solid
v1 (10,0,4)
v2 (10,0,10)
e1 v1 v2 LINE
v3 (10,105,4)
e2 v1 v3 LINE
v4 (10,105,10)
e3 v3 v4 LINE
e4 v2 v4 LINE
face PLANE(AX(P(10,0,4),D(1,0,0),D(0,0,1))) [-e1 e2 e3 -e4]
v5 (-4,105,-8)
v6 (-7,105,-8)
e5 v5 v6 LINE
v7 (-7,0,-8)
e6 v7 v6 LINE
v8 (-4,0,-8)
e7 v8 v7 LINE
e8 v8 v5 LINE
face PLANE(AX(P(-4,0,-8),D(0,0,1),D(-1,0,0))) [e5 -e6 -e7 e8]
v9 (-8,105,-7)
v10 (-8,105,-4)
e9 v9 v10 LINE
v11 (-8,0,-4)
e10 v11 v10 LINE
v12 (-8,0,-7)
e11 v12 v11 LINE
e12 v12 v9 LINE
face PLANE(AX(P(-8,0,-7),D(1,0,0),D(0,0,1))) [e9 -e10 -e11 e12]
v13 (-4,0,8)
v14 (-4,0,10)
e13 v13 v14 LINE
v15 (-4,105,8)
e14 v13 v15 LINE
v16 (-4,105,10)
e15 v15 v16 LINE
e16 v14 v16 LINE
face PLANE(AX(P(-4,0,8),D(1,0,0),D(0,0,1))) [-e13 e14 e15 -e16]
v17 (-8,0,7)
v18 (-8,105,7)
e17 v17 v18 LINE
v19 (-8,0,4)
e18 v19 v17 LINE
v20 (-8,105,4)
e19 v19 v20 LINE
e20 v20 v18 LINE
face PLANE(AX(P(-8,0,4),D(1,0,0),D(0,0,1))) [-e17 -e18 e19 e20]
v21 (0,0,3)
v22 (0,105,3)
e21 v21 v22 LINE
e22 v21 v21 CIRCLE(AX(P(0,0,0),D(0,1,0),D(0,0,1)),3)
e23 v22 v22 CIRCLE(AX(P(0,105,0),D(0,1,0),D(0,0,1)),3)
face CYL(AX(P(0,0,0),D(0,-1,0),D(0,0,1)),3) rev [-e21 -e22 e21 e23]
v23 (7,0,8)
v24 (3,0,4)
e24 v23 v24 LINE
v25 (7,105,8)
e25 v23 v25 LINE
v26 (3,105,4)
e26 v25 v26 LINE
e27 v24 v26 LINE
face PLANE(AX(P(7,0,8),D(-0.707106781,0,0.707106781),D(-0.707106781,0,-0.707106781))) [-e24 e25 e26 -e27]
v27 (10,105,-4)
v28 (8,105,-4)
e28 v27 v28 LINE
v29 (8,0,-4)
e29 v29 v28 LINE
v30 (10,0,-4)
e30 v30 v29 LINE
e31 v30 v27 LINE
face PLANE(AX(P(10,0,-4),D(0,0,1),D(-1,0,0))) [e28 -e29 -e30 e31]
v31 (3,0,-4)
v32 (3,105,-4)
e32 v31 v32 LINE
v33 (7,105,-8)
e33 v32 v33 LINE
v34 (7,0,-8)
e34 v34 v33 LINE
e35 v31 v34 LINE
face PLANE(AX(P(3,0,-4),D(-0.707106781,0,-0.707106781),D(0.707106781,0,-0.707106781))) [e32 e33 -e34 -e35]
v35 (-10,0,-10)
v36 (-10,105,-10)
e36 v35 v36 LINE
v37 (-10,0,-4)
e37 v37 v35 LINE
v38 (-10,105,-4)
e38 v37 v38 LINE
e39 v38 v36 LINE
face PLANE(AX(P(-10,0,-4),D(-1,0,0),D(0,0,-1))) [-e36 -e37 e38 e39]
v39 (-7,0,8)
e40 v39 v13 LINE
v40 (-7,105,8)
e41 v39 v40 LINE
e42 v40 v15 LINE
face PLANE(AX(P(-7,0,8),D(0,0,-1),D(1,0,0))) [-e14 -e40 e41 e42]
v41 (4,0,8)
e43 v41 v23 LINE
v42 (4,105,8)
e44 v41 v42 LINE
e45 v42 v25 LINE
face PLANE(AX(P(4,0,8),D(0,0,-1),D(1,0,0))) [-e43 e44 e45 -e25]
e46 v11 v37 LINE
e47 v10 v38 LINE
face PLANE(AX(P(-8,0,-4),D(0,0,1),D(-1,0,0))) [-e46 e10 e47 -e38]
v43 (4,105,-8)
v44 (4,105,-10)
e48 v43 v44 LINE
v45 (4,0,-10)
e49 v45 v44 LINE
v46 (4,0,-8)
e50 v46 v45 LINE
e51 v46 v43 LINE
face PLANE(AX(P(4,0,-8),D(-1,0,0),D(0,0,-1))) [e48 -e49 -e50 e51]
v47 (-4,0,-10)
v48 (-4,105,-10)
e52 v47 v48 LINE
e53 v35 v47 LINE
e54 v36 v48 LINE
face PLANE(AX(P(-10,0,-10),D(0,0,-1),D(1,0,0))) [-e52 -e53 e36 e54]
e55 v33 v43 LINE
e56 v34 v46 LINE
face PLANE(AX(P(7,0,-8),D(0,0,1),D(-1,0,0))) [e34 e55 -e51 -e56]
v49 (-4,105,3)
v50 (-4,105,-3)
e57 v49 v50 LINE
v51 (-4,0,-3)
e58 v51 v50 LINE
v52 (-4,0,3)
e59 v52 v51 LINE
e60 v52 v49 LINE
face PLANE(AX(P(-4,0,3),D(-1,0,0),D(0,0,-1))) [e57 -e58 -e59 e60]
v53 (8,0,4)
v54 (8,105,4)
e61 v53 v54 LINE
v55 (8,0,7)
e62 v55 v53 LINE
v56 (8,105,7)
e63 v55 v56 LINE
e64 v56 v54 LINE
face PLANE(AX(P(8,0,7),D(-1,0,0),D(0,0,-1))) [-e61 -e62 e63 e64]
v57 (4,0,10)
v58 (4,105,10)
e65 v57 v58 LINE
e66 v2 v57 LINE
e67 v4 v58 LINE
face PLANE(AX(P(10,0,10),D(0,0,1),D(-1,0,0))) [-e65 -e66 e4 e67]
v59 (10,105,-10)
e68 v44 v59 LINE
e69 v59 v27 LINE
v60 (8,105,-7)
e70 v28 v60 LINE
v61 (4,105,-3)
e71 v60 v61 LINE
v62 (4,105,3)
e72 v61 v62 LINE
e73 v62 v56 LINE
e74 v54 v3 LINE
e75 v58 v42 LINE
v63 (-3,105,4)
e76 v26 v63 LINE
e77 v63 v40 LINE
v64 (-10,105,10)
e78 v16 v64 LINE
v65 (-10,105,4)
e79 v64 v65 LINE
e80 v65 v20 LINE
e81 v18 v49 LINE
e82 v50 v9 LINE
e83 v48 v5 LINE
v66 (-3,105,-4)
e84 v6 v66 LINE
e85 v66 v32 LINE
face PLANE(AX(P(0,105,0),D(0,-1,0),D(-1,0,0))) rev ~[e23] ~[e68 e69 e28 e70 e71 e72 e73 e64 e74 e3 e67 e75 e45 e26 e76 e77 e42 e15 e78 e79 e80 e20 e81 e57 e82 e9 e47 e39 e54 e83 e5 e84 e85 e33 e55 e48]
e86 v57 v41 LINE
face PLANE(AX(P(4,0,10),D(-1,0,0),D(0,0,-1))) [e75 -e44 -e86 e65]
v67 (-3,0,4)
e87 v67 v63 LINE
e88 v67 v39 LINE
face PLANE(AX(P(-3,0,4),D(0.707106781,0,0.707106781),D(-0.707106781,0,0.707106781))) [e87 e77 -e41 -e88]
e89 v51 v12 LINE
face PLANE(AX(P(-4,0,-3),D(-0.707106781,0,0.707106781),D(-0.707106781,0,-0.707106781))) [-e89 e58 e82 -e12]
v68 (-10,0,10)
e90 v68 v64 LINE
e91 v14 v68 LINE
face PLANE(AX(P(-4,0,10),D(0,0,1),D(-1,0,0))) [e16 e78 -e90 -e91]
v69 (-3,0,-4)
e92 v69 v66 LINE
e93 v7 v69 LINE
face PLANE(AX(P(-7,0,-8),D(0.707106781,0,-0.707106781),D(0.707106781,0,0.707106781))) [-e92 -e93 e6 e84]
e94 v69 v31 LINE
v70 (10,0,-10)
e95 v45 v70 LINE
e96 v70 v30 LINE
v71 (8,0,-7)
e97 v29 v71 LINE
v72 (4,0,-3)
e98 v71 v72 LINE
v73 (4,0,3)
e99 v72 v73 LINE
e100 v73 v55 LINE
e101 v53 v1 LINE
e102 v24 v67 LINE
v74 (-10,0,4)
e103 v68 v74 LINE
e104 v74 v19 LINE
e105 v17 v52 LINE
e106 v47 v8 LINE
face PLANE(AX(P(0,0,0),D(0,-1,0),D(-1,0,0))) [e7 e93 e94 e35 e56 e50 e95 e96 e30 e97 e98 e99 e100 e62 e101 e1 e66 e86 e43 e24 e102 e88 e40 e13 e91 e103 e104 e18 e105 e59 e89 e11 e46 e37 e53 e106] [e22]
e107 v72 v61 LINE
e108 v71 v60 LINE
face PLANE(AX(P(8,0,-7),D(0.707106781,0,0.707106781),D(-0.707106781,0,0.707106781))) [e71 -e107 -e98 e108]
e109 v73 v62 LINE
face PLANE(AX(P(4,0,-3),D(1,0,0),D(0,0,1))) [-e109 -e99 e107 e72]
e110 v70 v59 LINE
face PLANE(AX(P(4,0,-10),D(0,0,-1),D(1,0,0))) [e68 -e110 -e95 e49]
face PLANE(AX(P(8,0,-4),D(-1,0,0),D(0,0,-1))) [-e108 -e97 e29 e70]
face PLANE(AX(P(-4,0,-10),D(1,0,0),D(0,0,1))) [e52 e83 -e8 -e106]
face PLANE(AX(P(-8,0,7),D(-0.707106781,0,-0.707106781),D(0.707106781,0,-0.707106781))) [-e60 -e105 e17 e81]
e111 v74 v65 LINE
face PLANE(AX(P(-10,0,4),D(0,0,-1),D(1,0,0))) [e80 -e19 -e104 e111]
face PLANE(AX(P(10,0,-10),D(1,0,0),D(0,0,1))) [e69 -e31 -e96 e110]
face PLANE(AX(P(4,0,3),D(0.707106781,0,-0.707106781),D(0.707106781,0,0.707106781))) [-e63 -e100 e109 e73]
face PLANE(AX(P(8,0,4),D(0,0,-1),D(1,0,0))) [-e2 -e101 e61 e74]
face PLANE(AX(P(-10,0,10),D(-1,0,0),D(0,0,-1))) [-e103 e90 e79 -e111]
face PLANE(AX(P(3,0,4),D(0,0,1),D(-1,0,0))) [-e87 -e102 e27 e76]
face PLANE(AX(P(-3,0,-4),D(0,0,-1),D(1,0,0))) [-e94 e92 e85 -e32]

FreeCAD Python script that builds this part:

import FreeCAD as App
import Part
import Sketcher
from FreeCAD import Vector
Q = App.Units.Quantity

doc = App.newDocument("Part")
body = doc.addObject("PartDesign::Body", "Body")

# Sketch on XZ plane
sketch1 = doc.addObject("Sketcher::SketchObject", "Sketch")
body.addObject(sketch1)
sketch1.AttachmentSupport = (doc.XZ_Plane, [""])
sketch1.MapMode = "FlatFace"
sketch1.addGeometry(Part.LineSegment(Vector(-4, -8, 0), Vector(-4, -10, 0)), False)
sketch1.addGeometry(Part.LineSegment(Vector(-4, -10, 0), Vector(-10, -10, 0)), False)
sketch1.addGeometry(Part.LineSegment(Vector(-10, -10, 0), Vector(-10, -4, 0)), False)
sketch1.addGeometry(Part.LineSegment(Vector(-10, -4, 0), Vector(-8, -4, 0)), False)
sketch1.addGeometry(Part.LineSegment(Vector(-8, -4, 0), Vector(-8, -7, 0)), False)
sketch1.addGeometry(Part.LineSegment(Vector(-8, -7, 0), Vector(-4, -3, 0)), False)
sketch1.addGeometry(Part.LineSegment(Vector(-4, -3, 0), Vector(-4, 3, 0)), False)
sketch1.addGeometry(Part.LineSegment(Vector(-4, 3, 0), Vector(-8, 7, 0)), False)
sketch1.addGeometry(Part.LineSegment(Vector(-8, 7, 0), Vector(-8, 4, 0)), False)
sketch1.addGeometry(Part.LineSegment(Vector(-8, 4, 0), Vector(-10, 4, 0)), False)
sketch1.addGeometry(Part.LineSegment(Vector(-10, 4, 0), Vector(-10, 10, 0)), False)
sketch1.addGeometry(Part.LineSegment(Vector(-10, 10, 0), Vector(-4, 10, 0)), False)
sketch1.addGeometry(Part.LineSegment(Vector(-4, 10, 0), Vector(-4, 8, 0)), False)
sketch1.addGeometry(Part.LineSegment(Vector(-4, 8, 0), Vector(-7, 8, 0)), False)
sketch1.addGeometry(Part.LineSegment(Vector(-7, 8, 0), Vector(-3, 4, 0)), False)
sketch1.addGeometry(Part.LineSegment(Vector(-3, 4, 0), Vector(3, 4, 0)), False)
sketch1.addGeometry(Part.LineSegment(Vector(3, 4, 0), Vector(7, 8, 0)), False)
sketch1.addGeometry(Part.LineSegment(Vector(7, 8, 0), Vector(4, 8, 0)), False)
sketch1.addGeometry(Part.LineSegment(Vector(4, 8, 0), Vector(4, 10, 0)), False)
sketch1.addGeometry(Part.LineSegment(Vector(4, 10, 0), Vector(10, 10, 0)), False)
sketch1.addGeometry(Part.LineSegment(Vector(10, 10, 0), Vector(10, 4, 0)), False)
sketch1.addGeometry(Part.LineSegment(Vector(10, 4, 0), Vector(8, 4, 0)), False)
sketch1.addGeometry(Part.LineSegment(Vector(8, 4, 0), Vector(8, 7, 0)), False)
sketch1.addGeometry(Part.LineSegment(Vector(8, 7, 0), Vector(4, 3, 0)), False)
sketch1.addGeometry(Part.LineSegment(Vector(4, 3, 0), Vector(4, -3, 0)), False)
sketch1.addGeometry(Part.LineSegment(Vector(4, -3, 0), Vector(8, -7, 0)), False)
sketch1.addGeometry(Part.LineSegment(Vector(8, -7, 0), Vector(8, -4, 0)), False)
sketch1.addGeometry(Part.LineSegment(Vector(8, -4, 0), Vector(10, -4, 0)), False)
sketch1.addGeometry(Part.LineSegment(Vector(10, -4, 0), Vector(10, -10, 0)), False)
sketch1.addGeometry(Part.LineSegment(Vector(10, -10, 0), Vector(4, -10, 0)), False)
sketch1.addGeometry(Part.LineSegment(Vector(4, -10, 0), Vector(4, -8, 0)), False)
sketch1.addGeometry(Part.LineSegment(Vector(4, -8, 0), Vector(7, -8, 0)), False)
sketch1.addGeometry(Part.LineSegment(Vector(7, -8, 0), Vector(3, -4, 0)), False)
sketch1.addGeometry(Part.LineSegment(Vector(3, -4, 0), Vector(-3, -4, 0)), False)
sketch1.addGeometry(Part.LineSegment(Vector(-3, -4, 0), Vector(-7, -8, 0)), False)
sketch1.addGeometry(Part.LineSegment(Vector(-7, -8, 0), Vector(-4, -8, 0)), False)
sketch1.addGeometry(Part.Circle(Vector(0, 0, 0), Vector(0, 0, 1), 3), False)
sketch1.addConstraint(Sketcher.Constraint("Coincident", 0, 2, 1, 1))
sketch1.addConstraint(Sketcher.Constraint("Coincident", 1, 2, 2, 1))
sketch1.addConstraint(Sketcher.Constraint("Coincident", 2, 2, 3, 1))
sketch1.addConstraint(Sketcher.Constraint("Coincident", 3, 2, 4, 1))
sketch1.addConstraint(Sketcher.Constraint("Coincident", 4, 2, 5, 1))
sketch1.addConstraint(Sketcher.Constraint("Coincident", 5, 2, 6, 1))
sketch1.addConstraint(Sketcher.Constraint("Coincident", 6, 2, 7, 1))
sketch1.addConstraint(Sketcher.Constraint("Coincident", 7, 2, 8, 1))
sketch1.addConstraint(Sketcher.Constraint("Coincident", 8, 2, 9, 1))
sketch1.addConstraint(Sketcher.Constraint("Coincident", 9, 2, 10, 1))
sketch1.addConstraint(Sketcher.Constraint("Coincident", 10, 2, 11, 1))
sketch1.addConstraint(Sketcher.Constraint("Coincident", 11, 2, 12, 1))
sketch1.addConstraint(Sketcher.Constraint("Coincident", 12, 2, 13, 1))
sketch1.addConstraint(Sketcher.Constraint("Coincident", 13, 2, 14, 1))
sketch1.addConstraint(Sketcher.Constraint("Coincident", 14, 2, 15, 1))
sketch1.addConstraint(Sketcher.Constraint("Coincident", 15, 2, 16, 1))
sketch1.addConstraint(Sketcher.Constraint("Coincident", 16, 2, 17, 1))
sketch1.addConstraint(Sketcher.Constraint("Coincident", 17, 2, 18, 1))
sketch1.addConstraint(Sketcher.Constraint("Coincident", 18, 2, 19, 1))
sketch1.addConstraint(Sketcher.Constraint("Coincident", 19, 2, 20, 1))
sketch1.addConstraint(Sketcher.Constraint("Coincident", 20, 2, 21, 1))
sketch1.addConstraint(Sketcher.Constraint("Coincident", 21, 2, 22, 1))
sketch1.addConstraint(Sketcher.Constraint("Coincident", 22, 2, 23, 1))
sketch1.addConstraint(Sketcher.Constraint("Coincident", 23, 2, 24, 1))
sketch1.addConstraint(Sketcher.Constraint("Coincident", 24, 2, 25, 1))
sketch1.addConstraint(Sketcher.Constraint("Coincident", 25, 2, 26, 1))
sketch1.addConstraint(Sketcher.Constraint("Coincident", 26, 2, 27, 1))
sketch1.addConstraint(Sketcher.Constraint("Coincident", 27, 2, 28, 1))
sketch1.addConstraint(Sketcher.Constraint("Coincident", 28, 2, 29, 1))
sketch1.addConstraint(Sketcher.Constraint("Coincident", 29, 2, 30, 1))
sketch1.addConstraint(Sketcher.Constraint("Coincident", 30, 2, 31, 1))
sketch1.addConstraint(Sketcher.Constraint("Coincident", 31, 2, 32, 1))
sketch1.addConstraint(Sketcher.Constraint("Coincident", 32, 2, 33, 1))
sketch1.addConstraint(Sketcher.Constraint("Coincident", 33, 2, 34, 1))
sketch1.addConstraint(Sketcher.Constraint("Coincident", 34, 2, 35, 1))
sketch1.addConstraint(Sketcher.Constraint("Coincident", 35, 2, 0, 1))
sketch1.addConstraint(Sketcher.Constraint("Vertical", 0))
sketch1.addConstraint(Sketcher.Constraint("Horizontal", 1))
sketch1.addConstraint(Sketcher.Constraint("Vertical", 2))
sketch1.addConstraint(Sketcher.Constraint("Horizontal", 3))
sketch1.addConstraint(Sketcher.Constraint("Vertical", 4))
sketch1.addConstraint(Sketcher.Constraint("Vertical", 6))
sketch1.addConstraint(Sketcher.Constraint("Vertical", 8))
sketch1.addConstraint(Sketcher.Constraint("Horizontal", 9))
sketch1.addConstraint(Sketcher.Constraint("Vertical", 10))
sketch1.addConstraint(Sketcher.Constraint("Horizontal", 11))
sketch1.addConstraint(Sketcher.Constraint("Vertical", 12))
sketch1.addConstraint(Sketcher.Constraint("Horizontal", 13))
sketch1.addConstraint(Sketcher.Constraint("Horizontal", 15))
sketch1.addConstraint(Sketcher.Constraint("Horizontal", 17))
sketch1.addConstraint(Sketcher.Constraint("Vertical", 18))
sketch1.addConstraint(Sketcher.Constraint("Horizontal", 19))
sketch1.addConstraint(Sketcher.Constraint("Vertical", 20))
sketch1.addConstraint(Sketcher.Constraint("Horizontal", 21))
sketch1.addConstraint(Sketcher.Constraint("Vertical", 22))
sketch1.addConstraint(Sketcher.Constraint("Vertical", 24))
sketch1.addConstraint(Sketcher.Constraint("Vertical", 26))
sketch1.addConstraint(Sketcher.Constraint("Horizontal", 27))
sketch1.addConstraint(Sketcher.Constraint("Vertical", 28))
sketch1.addConstraint(Sketcher.Constraint("Horizontal", 29))
sketch1.addConstraint(Sketcher.Constraint("Vertical", 30))
sketch1.addConstraint(Sketcher.Constraint("Horizontal", 31))
sketch1.addConstraint(Sketcher.Constraint("Horizontal", 33))
sketch1.addConstraint(Sketcher.Constraint("Horizontal", 35))
sketch1.addConstraint(Sketcher.Constraint("Coincident", 36, 3, -1, 1))
sketch1.addConstraint(Sketcher.Constraint("Symmetric", 0, 2, 18, 2, -1, 1))
sketch1.addConstraint(Sketcher.Constraint("Symmetric", 2, 2, 20, 2, -1, 1))
sketch1.addConstraint(Sketcher.Constraint("Symmetric", 4, 2, 22, 2, -1, 1))
sketch1.addConstraint(Sketcher.Constraint("Symmetric", 5, 2, 23, 2, -1, 1))
sketch1.addConstraint(Sketcher.Constraint("Symmetric", 7, 2, 25, 2, -1, 1))
sketch1.addConstraint(Sketcher.Constraint("Symmetric", 9, 2, 27, 2, -1, 1))
sketch1.addConstraint(Sketcher.Constraint("Symmetric", 11, 2, 29, 2, -1, 1))
sketch1.addConstraint(Sketcher.Constraint("Symmetric", 13, 2, 31, 2, -1, 1))
sketch1.addConstraint(Sketcher.Constraint("Symmetric", 14, 2, 32, 2, -1, 1))
sketch1.addConstraint(Sketcher.Constraint("Symmetric", 16, 2, 34, 2, -1, 1))
sketch1.addConstraint(Sketcher.Constraint("Symmetric", 13, 2, 16, 2, -2))
sketch1.addConstraint(Sketcher.Constraint("Symmetric", 11, 2, 18, 2, -2))
sketch1.addConstraint(Sketcher.Constraint("Symmetric", 9, 2, 20, 2, -2))
sketch1.addConstraint(Sketcher.Constraint("Symmetric", 7, 2, 22, 2, -2))
sketch1.addConstraint(Sketcher.Constraint("Perpendicular", 5, 7))
sketch1.addConstraint(Sketcher.Constraint("Parallel", 7, 14))
sketch1.addConstraint(Sketcher.Constraint("Perpendicular", 14, 16))
sketch1.addConstraint(Sketcher.Constraint("Perpendicular", 23, 25))
sketch1.addConstraint(Sketcher.Constraint("Perpendicular", 32, 34))
sketch1.addConstraint(Sketcher.Constraint("Horizontal", 9, 2, 14, 2))
sketch1.addConstraint(Sketcher.Constraint("Horizontal", 6, 2, 23, 2))
sketch1.addConstraint(Sketcher.Constraint("Vertical", 0, 2, 5, 2))
sketch1.addConstraint(Sketcher.Constraint("Equal", 11, 15))
sketch1.addConstraint(Sketcher.Constraint("Equal", 27, 0))
sketch1.addConstraint(Sketcher.Constraint("Equal", 33, 2))
sketch1.addConstraint(Sketcher.Constraint("Equal", 35, 4))
sketch1.addConstraint(Sketcher.Constraint("Equal", 2, 6))
sketch1.addConstraint(Sketcher.Constraint("Diameter", 36, Q("6 mm")))
sketch1.addConstraint(Sketcher.Constraint("DistanceX", 1, 2, 1, 1, Q("6 mm")))
sketch1.addConstraint(Sketcher.Constraint("DistanceX", 3, 1, 3, 2, Q("2 mm")))
sketch1.addConstraint(Sketcher.Constraint("DistanceX", 13, 2, 13, 1, Q("3 mm")))
pad1 = doc.addObject("PartDesign::Pad", "Pad")
body.addObject(pad1)
pad1.Profile = sketch1
pad1.Length = 105
pad1.Reversed = True

doc.recompute()
